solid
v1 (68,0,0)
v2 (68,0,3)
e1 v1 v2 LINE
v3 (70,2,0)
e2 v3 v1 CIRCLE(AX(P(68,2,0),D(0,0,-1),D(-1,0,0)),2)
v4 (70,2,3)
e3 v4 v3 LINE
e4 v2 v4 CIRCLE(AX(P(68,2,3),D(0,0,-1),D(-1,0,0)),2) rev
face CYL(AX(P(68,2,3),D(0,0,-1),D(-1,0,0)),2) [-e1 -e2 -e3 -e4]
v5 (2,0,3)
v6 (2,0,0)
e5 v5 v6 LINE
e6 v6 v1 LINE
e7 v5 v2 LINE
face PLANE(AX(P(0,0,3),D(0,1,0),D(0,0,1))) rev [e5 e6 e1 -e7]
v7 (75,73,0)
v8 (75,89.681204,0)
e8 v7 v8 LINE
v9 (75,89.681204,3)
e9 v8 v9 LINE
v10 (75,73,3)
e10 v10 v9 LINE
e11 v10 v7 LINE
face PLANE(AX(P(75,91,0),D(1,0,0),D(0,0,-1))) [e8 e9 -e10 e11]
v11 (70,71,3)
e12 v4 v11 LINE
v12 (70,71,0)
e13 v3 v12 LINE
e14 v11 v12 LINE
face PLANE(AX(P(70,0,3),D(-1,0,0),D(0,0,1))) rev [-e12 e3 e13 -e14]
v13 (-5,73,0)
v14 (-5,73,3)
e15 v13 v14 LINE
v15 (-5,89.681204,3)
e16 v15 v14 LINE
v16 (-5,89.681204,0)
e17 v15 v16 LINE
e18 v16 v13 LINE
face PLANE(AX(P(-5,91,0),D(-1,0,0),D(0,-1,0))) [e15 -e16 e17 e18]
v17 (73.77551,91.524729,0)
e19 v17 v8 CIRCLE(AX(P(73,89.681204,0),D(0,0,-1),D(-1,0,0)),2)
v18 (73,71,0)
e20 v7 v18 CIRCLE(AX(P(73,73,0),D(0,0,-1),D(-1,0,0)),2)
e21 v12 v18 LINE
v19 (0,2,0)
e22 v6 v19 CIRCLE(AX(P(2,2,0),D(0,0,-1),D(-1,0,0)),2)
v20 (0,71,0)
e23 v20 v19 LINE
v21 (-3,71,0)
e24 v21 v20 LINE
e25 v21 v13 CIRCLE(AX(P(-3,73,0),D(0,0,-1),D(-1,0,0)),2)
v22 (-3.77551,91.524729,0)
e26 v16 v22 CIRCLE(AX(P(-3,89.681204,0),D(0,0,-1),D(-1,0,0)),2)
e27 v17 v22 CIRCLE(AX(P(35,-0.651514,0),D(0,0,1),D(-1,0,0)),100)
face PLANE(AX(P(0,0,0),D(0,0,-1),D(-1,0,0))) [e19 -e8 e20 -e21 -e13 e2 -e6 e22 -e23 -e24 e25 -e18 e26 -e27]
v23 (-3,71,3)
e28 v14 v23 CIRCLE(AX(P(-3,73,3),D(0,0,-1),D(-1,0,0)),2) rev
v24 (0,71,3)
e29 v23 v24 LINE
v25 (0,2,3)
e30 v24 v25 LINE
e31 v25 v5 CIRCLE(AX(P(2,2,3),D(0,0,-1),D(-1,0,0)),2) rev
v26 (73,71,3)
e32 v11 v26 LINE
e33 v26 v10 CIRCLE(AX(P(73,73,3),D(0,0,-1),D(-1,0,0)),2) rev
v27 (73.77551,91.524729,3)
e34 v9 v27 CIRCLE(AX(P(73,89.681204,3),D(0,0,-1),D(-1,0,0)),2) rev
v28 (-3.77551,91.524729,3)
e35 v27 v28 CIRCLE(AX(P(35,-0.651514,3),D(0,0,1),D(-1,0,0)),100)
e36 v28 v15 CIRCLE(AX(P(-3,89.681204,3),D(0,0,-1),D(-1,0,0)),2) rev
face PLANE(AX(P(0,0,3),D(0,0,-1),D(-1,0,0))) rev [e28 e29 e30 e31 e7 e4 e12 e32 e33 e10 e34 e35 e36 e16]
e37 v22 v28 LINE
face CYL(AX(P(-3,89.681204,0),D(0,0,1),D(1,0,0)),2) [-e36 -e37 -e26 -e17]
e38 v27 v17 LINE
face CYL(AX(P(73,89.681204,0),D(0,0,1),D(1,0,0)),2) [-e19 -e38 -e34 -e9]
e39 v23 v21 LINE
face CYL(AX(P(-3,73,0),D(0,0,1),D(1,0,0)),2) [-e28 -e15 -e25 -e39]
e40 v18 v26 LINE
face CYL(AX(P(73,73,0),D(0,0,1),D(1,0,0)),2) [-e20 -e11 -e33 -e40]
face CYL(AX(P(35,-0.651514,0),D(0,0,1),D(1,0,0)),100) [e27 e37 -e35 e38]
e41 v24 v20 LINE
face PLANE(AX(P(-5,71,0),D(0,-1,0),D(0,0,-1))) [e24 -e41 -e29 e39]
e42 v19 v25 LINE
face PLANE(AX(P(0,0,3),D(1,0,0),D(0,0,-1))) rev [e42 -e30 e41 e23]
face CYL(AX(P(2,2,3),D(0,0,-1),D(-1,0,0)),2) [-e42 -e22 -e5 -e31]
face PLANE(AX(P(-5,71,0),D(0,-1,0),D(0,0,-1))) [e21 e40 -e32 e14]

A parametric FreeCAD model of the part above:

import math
import FreeCAD as App
import Part
import Sketcher

V = App.Vector
Q = App.Units.Quantity


def edges_at(feature, points):
    """Names of the edges that pass closest to the given points."""
    edges = feature.Shape.Edges
    near = lambda p: min(range(len(edges)), key=lambda i: edges[i].distToShape(Part.Vertex(*p))[0])
    return sorted({f"Edge{near(p) + 1}" for p in points})

doc = App.newDocument("Part")
body = doc.addObject("PartDesign::Body", "Body")

# Sketch on XY plane
sketch1 = body.newObject("Sketcher::SketchObject", "Sketch")
sketch1.AttachmentSupport = (doc.getObject("XY_Plane"), [""])
sketch1.MapMode = "FlatFace"
sketch1.addGeometry(Part.LineSegment(V(0, 71, 0), V(0, 0, 0)), False)
sketch1.addGeometry(Part.LineSegment(V(0, 0, 0), V(70, 0, 0)), False)
sketch1.addGeometry(Part.LineSegment(V(70, 0, 0), V(70, 71, 0)), False)
sketch1.addGeometry(Part.LineSegment(V(70, 71, 0), V(0, 71, 0)), False)
sketch1.addConstraint(Sketcher.Constraint("Coincident", 0, 2, 1, 1))
sketch1.addConstraint(Sketcher.Constraint("Coincident", 1, 2, 2, 1))
sketch1.addConstraint(Sketcher.Constraint("Coincident", 2, 2, 3, 1))
sketch1.addConstraint(Sketcher.Constraint("Coincident", 3, 2, 0, 1))
sketch1.addConstraint(Sketcher.Constraint("Vertical", 0))
sketch1.addConstraint(Sketcher.Constraint("Horizontal", 1))
sketch1.addConstraint(Sketcher.Constraint("Vertical", 2))
sketch1.addConstraint(Sketcher.Constraint("Horizontal", 3))
sketch1.addConstraint(Sketcher.Constraint("Coincident", 0, 2, -1, 1))
sketch1.addConstraint(Sketcher.Constraint("DistanceX", 1, 1, 1, 2, Q("70 mm")))
sketch1.addConstraint(Sketcher.Constraint("DistanceY", 0, 2, 0, 1, Q("71 mm")))
pad1 = body.newObject("PartDesign::Pad", "Pad")
pad1.Profile = sketch1
pad1.Length = 3

# Sketch on XY plane
sketch2 = body.newObject("Sketcher::SketchObject", "Sketch001")
sketch2.AttachmentSupport = (doc.getObject("XY_Plane"), [""])
sketch2.MapMode = "FlatFace"
sketch2.AttachmentOffset = App.Placement(V(0, 0, 3), App.Rotation())
sketch2.addGeometry(Part.LineSegment(V(-5, 91, 0), V(-5, 71, 0)), False)
sketch2.addGeometry(Part.LineSegment(V(-5, 71, 0), V(75, 71, 0)), False)
sketch2.addGeometry(Part.LineSegment(V(75, 71, 0), V(75, 91, 0)), False)
sketch2.addGeometry(Part.ArcOfCircle(Part.Circle(V(35, -1, 0), V(0, 0, 1), 100), math.radians(66), math.radians(114)), False)
sketch2.addConstraint(Sketcher.Constraint("Coincident", 0, 2, 1, 1))
sketch2.addConstraint(Sketcher.Constraint("Coincident", 1, 2, 2, 1))
sketch2.addConstraint(Sketcher.Constraint("Coincident", 2, 2, 3, 1))
sketch2.addConstraint(Sketcher.Constraint("Coincident", 3, 2, 0, 1))
sketch2.addConstraint(Sketcher.Constraint("Vertical", 0))
sketch2.addConstraint(Sketcher.Constraint("Horizontal", 1))
sketch2.addConstraint(Sketcher.Constraint("Vertical", 2))
sketch2.addConstraint(Sketcher.Constraint("Horizontal", 2, 2, 3, 2))
sketch2.addConstraint(Sketcher.Constraint("Radius", 3, Q("100 mm")))
sketch2.addConstraint(Sketcher.Constraint("DistanceX", 1, 1, 1, 2, Q("80 mm")))
sketch2.addConstraint(Sketcher.Constraint("DistanceY", 0, 2, 0, 1, Q("20 mm")))
sketch2.addConstraint(Sketcher.Constraint("DistanceX", -1, 1, 3, 3, Q("35 mm")))
sketch2.addConstraint(Sketcher.Constraint("DistanceY", -1, 1, 0, 2, Q("71 mm")))
pad2 = body.newObject("PartDesign::Pad", "Pad001")
pad2.Profile = sketch2
pad2.Length = 3
pad2.Reversed = True
doc.recompute()

fillet = body.newObject("PartDesign::Fillet", "Fillet")
fillet.Base = (pad2, edges_at(pad2, [
    (-5, 91, 1.5),
    (75, 91, 1.5),
    (75, 71, 1.5),
    (-5, 71, 1.5),
    (70, 0, 1.5),
    (0, 0, 1.5),
]))
fillet.Radius = 2

doc.recompute()
